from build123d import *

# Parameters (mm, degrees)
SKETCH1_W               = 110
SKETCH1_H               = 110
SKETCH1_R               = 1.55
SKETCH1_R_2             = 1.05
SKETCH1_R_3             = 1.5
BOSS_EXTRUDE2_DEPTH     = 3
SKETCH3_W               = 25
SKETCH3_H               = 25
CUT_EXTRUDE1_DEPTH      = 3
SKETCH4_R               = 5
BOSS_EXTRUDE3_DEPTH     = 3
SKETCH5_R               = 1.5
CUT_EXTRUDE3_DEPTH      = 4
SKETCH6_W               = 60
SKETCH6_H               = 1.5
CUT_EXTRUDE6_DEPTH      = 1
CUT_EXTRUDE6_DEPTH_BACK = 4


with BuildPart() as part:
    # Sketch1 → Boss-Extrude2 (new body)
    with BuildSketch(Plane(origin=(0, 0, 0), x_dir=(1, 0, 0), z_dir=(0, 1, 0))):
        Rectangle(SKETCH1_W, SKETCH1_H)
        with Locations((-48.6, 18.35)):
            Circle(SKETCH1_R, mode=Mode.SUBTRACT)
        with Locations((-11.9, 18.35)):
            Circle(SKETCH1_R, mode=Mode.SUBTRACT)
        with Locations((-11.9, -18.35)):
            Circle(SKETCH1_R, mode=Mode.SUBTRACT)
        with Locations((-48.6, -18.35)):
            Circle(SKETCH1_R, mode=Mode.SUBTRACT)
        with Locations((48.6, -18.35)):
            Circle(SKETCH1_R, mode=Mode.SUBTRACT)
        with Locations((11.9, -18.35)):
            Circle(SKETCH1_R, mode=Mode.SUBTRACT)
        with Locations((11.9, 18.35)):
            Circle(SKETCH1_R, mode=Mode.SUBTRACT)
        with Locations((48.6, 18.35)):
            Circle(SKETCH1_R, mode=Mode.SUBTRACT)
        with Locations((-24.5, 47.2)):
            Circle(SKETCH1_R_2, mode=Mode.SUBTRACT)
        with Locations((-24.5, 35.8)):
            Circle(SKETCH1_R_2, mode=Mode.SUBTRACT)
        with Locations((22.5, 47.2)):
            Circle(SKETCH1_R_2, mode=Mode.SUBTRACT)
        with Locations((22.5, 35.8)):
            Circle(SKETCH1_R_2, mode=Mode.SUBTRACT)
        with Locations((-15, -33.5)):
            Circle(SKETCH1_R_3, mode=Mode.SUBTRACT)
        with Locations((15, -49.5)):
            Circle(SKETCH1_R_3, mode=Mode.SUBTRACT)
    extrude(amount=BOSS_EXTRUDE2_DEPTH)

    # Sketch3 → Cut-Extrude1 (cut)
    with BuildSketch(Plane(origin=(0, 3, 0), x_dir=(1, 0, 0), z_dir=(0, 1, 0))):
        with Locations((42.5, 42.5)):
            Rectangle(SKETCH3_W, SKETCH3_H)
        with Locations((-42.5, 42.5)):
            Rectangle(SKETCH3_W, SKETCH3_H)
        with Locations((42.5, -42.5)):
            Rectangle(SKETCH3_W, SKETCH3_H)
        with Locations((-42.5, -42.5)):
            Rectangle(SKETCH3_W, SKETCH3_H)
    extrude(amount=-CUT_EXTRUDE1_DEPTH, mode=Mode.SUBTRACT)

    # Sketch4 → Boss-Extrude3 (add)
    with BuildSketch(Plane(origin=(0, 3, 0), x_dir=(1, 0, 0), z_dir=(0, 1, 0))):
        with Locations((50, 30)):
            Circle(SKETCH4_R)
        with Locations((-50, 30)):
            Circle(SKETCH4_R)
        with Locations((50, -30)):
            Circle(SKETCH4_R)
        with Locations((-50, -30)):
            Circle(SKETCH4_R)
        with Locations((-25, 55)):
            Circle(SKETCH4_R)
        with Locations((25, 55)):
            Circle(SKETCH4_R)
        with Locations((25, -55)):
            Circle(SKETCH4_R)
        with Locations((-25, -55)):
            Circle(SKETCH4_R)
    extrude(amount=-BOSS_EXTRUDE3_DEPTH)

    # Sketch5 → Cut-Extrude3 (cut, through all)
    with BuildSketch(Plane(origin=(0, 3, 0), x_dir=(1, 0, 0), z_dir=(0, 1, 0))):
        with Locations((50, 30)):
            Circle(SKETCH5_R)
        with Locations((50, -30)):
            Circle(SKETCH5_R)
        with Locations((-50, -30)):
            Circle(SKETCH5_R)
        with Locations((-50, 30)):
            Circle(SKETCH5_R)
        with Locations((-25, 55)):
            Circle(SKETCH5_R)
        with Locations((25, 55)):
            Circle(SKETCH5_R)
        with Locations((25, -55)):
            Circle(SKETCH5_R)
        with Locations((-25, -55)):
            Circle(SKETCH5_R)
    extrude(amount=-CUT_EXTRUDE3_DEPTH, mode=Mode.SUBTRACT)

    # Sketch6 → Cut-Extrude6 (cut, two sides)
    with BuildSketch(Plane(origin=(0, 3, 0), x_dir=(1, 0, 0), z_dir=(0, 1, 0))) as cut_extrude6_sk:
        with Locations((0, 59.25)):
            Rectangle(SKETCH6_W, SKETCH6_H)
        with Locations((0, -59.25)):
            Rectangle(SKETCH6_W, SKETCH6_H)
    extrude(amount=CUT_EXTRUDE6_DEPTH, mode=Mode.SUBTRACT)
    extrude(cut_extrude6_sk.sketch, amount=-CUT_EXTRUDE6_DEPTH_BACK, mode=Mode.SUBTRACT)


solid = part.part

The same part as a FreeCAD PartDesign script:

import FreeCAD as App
import Part
import Sketcher

V = App.Vector
Q = App.Units.Quantity

doc = App.newDocument("Part")
params = doc.addObject("Spreadsheet::Sheet", "Params")
for row, (alias, value) in enumerate([
    ("sketch1_diameter", "3 mm"),
    ("sketch1_diameter2", "3.1 mm"),
    ("sketch1_diameter3", "2.1 mm"),
    ("sketch1_width", "110 mm"),
    ("pad1_length", "3 mm"),
    ("sketch2_width", "25 mm"),
    ("pocket1_length", "3 mm"),
    ("sketch3_diameter", "10 mm"),
    ("pad2_length", "3 mm"),
    ("sketch4_diameter", "3 mm"),
    ("sketch5_width", "60 mm"),
    ("sketch5_height", "1.5 mm"),
], start=1):
    params.set(f"A{row}", alias)
    params.set(f"B{row}", "=" + value)
    params.setAlias(f"B{row}", alias)

body = doc.addObject("PartDesign::Body", "Body")

sketch1 = body.newObject("Sketcher::SketchObject", "Sketch")
sketch1.AttachmentSupport = (doc.getObject("XZ_Plane"), [""])
sketch1.MapMode = "FlatFace"
sketch1.addGeometry([
    Part.LineSegment(V(-55, -55, 0), V(-55, 55, 0)),
    Part.LineSegment(V(-55, 55, 0), V(55, 55, 0)),
    Part.LineSegment(V(55, 55, 0), V(55, -55, 0)),
    Part.LineSegment(V(55, -55, 0), V(-55, -55, 0)),
    Part.Circle(V(-15, 33.5, 0), V(0, 0, 1), 1.5),
    Part.Circle(V(-48.6, 18.35, 0), V(0, 0, 1), 1.55),
    Part.Circle(V(-11.9, 18.35, 0), V(0, 0, 1), 1.55),
    Part.Circle(V(15, 49.5, 0), V(0, 0, 1), 1.5),
    Part.Circle(V(11.9, 18.35, 0), V(0, 0, 1), 1.55),
    Part.Circle(V(48.6, 18.35, 0), V(0, 0, 1), 1.55),
    Part.Circle(V(-48.6, -18.35, 0), V(0, 0, 1), 1.55),
    Part.Circle(V(-11.9, -18.35, 0), V(0, 0, 1), 1.55),
    Part.Circle(V(-24.5, -35.8, 0), V(0, 0, 1), 1.05),
    Part.Circle(V(-24.5, -47.2, 0), V(0, 0, 1), 1.05),
    Part.Circle(V(11.9, -18.35, 0), V(0, 0, 1), 1.55),
    Part.Circle(V(48.6, -18.35, 0), V(0, 0, 1), 1.55),
    Part.Circle(V(22.5, -35.8, 0), V(0, 0, 1), 1.05),
    Part.Circle(V(22.5, -47.2, 0), V(0, 0, 1), 1.05),
], False)
sketch1.addConstraint([
    Sketcher.Constraint("Coincident", 0, 2, 1, 1),
    Sketcher.Constraint("Coincident", 1, 2, 2, 1),
    Sketcher.Constraint("Coincident", 2, 2, 3, 1),
    Sketcher.Constraint("Coincident", 3, 2, 0, 1),
    Sketcher.Constraint("Vertical", 0),
    Sketcher.Constraint("Horizontal", 1),
    Sketcher.Constraint("Vertical", 2),
    Sketcher.Constraint("Horizontal", 3),
    Sketcher.Constraint("Equal", 5, 6),
    Sketcher.Constraint("Equal", 4, 7),
    Sketcher.Constraint("Equal", 6, 8),
    Sketcher.Constraint("Equal", 8, 9),
    Sketcher.Constraint("Equal", 9, 10),
    Sketcher.Constraint("Equal", 10, 11),
    Sketcher.Constraint("Equal", 12, 13),
    Sketcher.Constraint("Equal", 11, 14),
    Sketcher.Constraint("Equal", 14, 15),
    Sketcher.Constraint("Equal", 13, 16),
    Sketcher.Constraint("Equal", 16, 17),
    Sketcher.Constraint("Symmetric", 9, 3, 10, 3, -1, 1),
    Sketcher.Constraint("Symmetric", 8, 3, 11, 3, -1, 1),
    Sketcher.Constraint("Symmetric", 6, 3, 14, 3, -1, 1),
    Sketcher.Constraint("Symmetric", 5, 3, 15, 3, -1, 1),
    Sketcher.Constraint("Symmetric", 0, 2, 2, 2, -1, 1),
    Sketcher.Constraint("Symmetric", 6, 3, 8, 3, -2),
    Sketcher.Constraint("Symmetric", 5, 3, 9, 3, -2),
    Sketcher.Constraint("Horizontal", 5, 3, 6, 3),
    Sketcher.Constraint("Horizontal", 12, 3, 16, 3),
    Sketcher.Constraint("Horizontal", 13, 3, 17, 3),
    Sketcher.Constraint("Vertical", 12, 3, 13, 3),
    Sketcher.Constraint("Vertical", 16, 3, 17, 3),
    Sketcher.Constraint("Equal", 3, 0),
    Sketcher.Constraint("Diameter", 4, Q("3 mm")),
    Sketcher.Constraint("Diameter", 5, Q("3.1 mm")),
    Sketcher.Constraint("Diameter", 12, Q("2.1 mm")),
    Sketcher.Constraint("DistanceX", 1, 1, 1, 2, Q("110 mm")),
    Sketcher.Constraint("DistanceX", 4, 3, -1, 1, Q("15 mm")),
    Sketcher.Constraint("DistanceX", -1, 1, 7, 3, Q("15 mm")),
    Sketcher.Constraint("DistanceY", 4, 3, 7, 3, Q("16 mm")),
    Sketcher.Constraint("DistanceX", 12, 3, 16, 3, Q("47 mm")),
    Sketcher.Constraint("DistanceY", -1, 1, 4, 3, Q("33.5 mm")),
    Sketcher.Constraint("DistanceX", 5, 3, -1, 1, Q("48.6 mm")),
    Sketcher.Constraint("DistanceX", 6, 3, -1, 1, Q("11.9 mm")),
    Sketcher.Constraint("DistanceX", 12, 3, -1, 1, Q("24.5 mm")),
    Sketcher.Constraint("DistanceY", 12, 3, -1, 1, Q("35.8 mm")),
    Sketcher.Constraint("DistanceY", 13, 3, -1, 1, Q("47.2 mm")),
    Sketcher.Constraint("DistanceY", 10, 3, 5, 3, Q("36.7 mm")),
])
sketch1.setExpression("Constraints[32]", "Params.sketch1_diameter")
sketch1.setExpression("Constraints[33]", "Params.sketch1_diameter2")
sketch1.setExpression("Constraints[34]", "Params.sketch1_diameter3")
sketch1.setExpression("Constraints[35]", "Params.sketch1_width")
pad1 = body.newObject("PartDesign::Pad", "Pad")
pad1.Profile = sketch1
pad1.setExpression("Length", "Params.pad1_length")
pad1.Reversed = True

sketch2 = body.newObject("Sketcher::SketchObject", "Sketch001")
sketch2.AttachmentSupport = (doc.getObject("XZ_Plane"), [""])
sketch2.MapMode = "FlatFace"
sketch2.AttachmentOffset = App.Placement(V(0, 0, -3), App.Rotation())
sketch2.addGeometry([
    Part.LineSegment(V(30, -55, 0), V(30, -30, 0)),
    Part.LineSegment(V(30, -30, 0), V(55, -30, 0)),
    Part.LineSegment(V(55, -30, 0), V(55, -55, 0)),
    Part.LineSegment(V(55, -55, 0), V(30, -55, 0)),
    Part.LineSegment(V(-55, -55, 0), V(-55, -30, 0)),
    Part.LineSegment(V(-55, -30, 0), V(-30, -30, 0)),
    Part.LineSegment(V(-30, -30, 0), V(-30, -55, 0)),
    Part.LineSegment(V(-30, -55, 0), V(-55, -55, 0)),
    Part.LineSegment(V(30, 30, 0), V(30, 55, 0)),
    Part.LineSegment(V(30, 55, 0), V(55, 55, 0)),
    Part.LineSegment(V(55, 55, 0), V(55, 30, 0)),
    Part.LineSegment(V(55, 30, 0), V(30, 30, 0)),
    Part.LineSegment(V(-55, 30, 0), V(-55, 55, 0)),
    Part.LineSegment(V(-55, 55, 0), V(-30, 55, 0)),
    Part.LineSegment(V(-30, 55, 0), V(-30, 30, 0)),
    Part.LineSegment(V(-30, 30, 0), V(-55, 30, 0)),
], False)
sketch2.addConstraint([
    Sketcher.Constraint("Coincident", 0, 2, 1, 1),
    Sketcher.Constraint("Coincident", 1, 2, 2, 1),
    Sketcher.Constraint("Coincident", 2, 2, 3, 1),
    Sketcher.Constraint("Coincident", 3, 2, 0, 1),
    Sketcher.Constraint("Coincident", 4, 2, 5, 1),
    Sketcher.Constraint("Coincident", 5, 2, 6, 1),
    Sketcher.Constraint("Coincident", 6, 2, 7, 1),
    Sketcher.Constraint("Coincident", 7, 2, 4, 1),
    Sketcher.Constraint("Coincident", 8, 2, 9, 1),
    Sketcher.Constraint("Coincident", 9, 2, 10, 1),
    Sketcher.Constraint("Coincident", 10, 2, 11, 1),
    Sketcher.Constraint("Coincident", 11, 2, 8, 1),
    Sketcher.Constraint("Coincident", 12, 2, 13, 1),
    Sketcher.Constraint("Coincident", 13, 2, 14, 1),
    Sketcher.Constraint("Coincident", 14, 2, 15, 1),
    Sketcher.Constraint("Coincident", 15, 2, 12, 1),
    Sketcher.Constraint("Vertical", 0),
    Sketcher.Constraint("Horizontal", 1),
    Sketcher.Constraint("Vertical", 2),
    Sketcher.Constraint("Horizontal", 3),
    Sketcher.Constraint("Vertical", 4),
    Sketcher.Constraint("Horizontal", 5),
    Sketcher.Constraint("Vertical", 6),
    Sketcher.Constraint("Horizontal", 7),
    Sketcher.Constraint("Vertical", 8),
    Sketcher.Constraint("Horizontal", 9),
    Sketcher.Constraint("Vertical", 10),
    Sketcher.Constraint("Horizontal", 11),
    Sketcher.Constraint("Vertical", 12),
    Sketcher.Constraint("Horizontal", 13),
    Sketcher.Constraint("Vertical", 14),
    Sketcher.Constraint("Horizontal", 15),
    Sketcher.Constraint("Symmetric", 6, 2, 8, 2, -1, 1),
    Sketcher.Constraint("Symmetric", 4, 2, 10, 2, -1, 1),
    Sketcher.Constraint("Symmetric", 2, 2, 12, 2, -1, 1),
    Sketcher.Constraint("Symmetric", 0, 2, 14, 2, -1, 1),
    Sketcher.Constraint("Symmetric", 1, 2, 4, 2, -2),
    Sketcher.Constraint("Symmetric", 3, 2, 6, 2, -2),
    Sketcher.Constraint("Equal", 15, 0),
    Sketcher.Constraint("DistanceX", 1, 1, 1, 2, Q("25 mm")),
    Sketcher.Constraint("DistanceX", -1, 1, 0, 2, Q("30 mm")),
    Sketcher.Constraint("DistanceY", 0, 2, -1, 1, Q("30 mm")),
])
sketch2.setExpression("Constraints[39]", "Params.sketch2_width")
pocket1 = body.newObject("PartDesign::Pocket", "Pocket")
pocket1.Profile = sketch2
pocket1.setExpression("Length", "Params.pocket1_length")
pocket1.Reversed = True

sketch3 = body.newObject("Sketcher::SketchObject", "Sketch002")
sketch3.AttachmentSupport = (doc.getObject("XZ_Plane"), [""])
sketch3.MapMode = "FlatFace"
sketch3.AttachmentOffset = App.Placement(V(0, 0, -3), App.Rotation())
sketch3.addGeometry([
    Part.Circle(V(50, -30, 0), V(0, 0, 1), 5),
    Part.Circle(V(-50, -30, 0), V(0, 0, 1), 5),
    Part.Circle(V(50, 30, 0), V(0, 0, 1), 5),
    Part.Circle(V(-50, 30, 0), V(0, 0, 1), 5),
    Part.Circle(V(-25, -55, 0), V(0, 0, 1), 5),
    Part.Circle(V(25, -55, 0), V(0, 0, 1), 5),
    Part.Circle(V(25, 55, 0), V(0, 0, 1), 5),
    Part.Circle(V(-25, 55, 0), V(0, 0, 1), 5),
], False)
sketch3.addConstraint([
    Sketcher.Constraint("Equal", 0, 1),
    Sketcher.Constraint("Equal", 1, 2),
    Sketcher.Constraint("Equal", 2, 3),
    Sketcher.Constraint("Equal", 3, 4),
    Sketcher.Constraint("Equal", 4, 5),
    Sketcher.Constraint("Equal", 5, 6),
    Sketcher.Constraint("Equal", 6, 7),
    Sketcher.Constraint("Symmetric", 1, 3, 2, 3, -1, 1),
    Sketcher.Constraint("Symmetric", 0, 3, 3, 3, -1, 1),
    Sketcher.Constraint("Symmetric", 4, 3, 6, 3, -1, 1),
    Sketcher.Constraint("Symmetric", 5, 3, 7, 3, -1, 1),
    Sketcher.Constraint("Symmetric", 0, 3, 1, 3, -2),
    Sketcher.Constraint("Symmetric", 4, 3, 5, 3, -2),
    Sketcher.Constraint("Diameter", 0, Q("10 mm")),
    Sketcher.Constraint("DistanceX", -1, 1, 0, 3, Q("50 mm")),
    Sketcher.Constraint("DistanceY", 0, 3, -1, 1, Q("30 mm")),
    Sketcher.Constraint("DistanceX", 4, 3, -1, 1, Q("25 mm")),
    Sketcher.Constraint("DistanceY", 4, 3, -1, 1, Q("55 mm")),
])
sketch3.setExpression("Constraints[13]", "Params.sketch3_diameter")
pad2 = body.newObject("PartDesign::Pad", "Pad001")
pad2.Profile = sketch3
pad2.setExpression("Length", "Params.pad2_length")

sketch4 = body.newObject("Sketcher::SketchObject", "Sketch003")
sketch4.AttachmentSupport = (doc.getObject("XZ_Plane"), [""])
sketch4.MapMode = "FlatFace"
sketch4.AttachmentOffset = App.Placement(V(0, 0, -3), App.Rotation())
sketch4.addGeometry([
    Part.Circle(V(50, -30, 0), V(0, 0, 1), 1.5),
    Part.Circle(V(50, 30, 0), V(0, 0, 1), 1.5),
    Part.Circle(V(-50, 30, 0), V(0, 0, 1), 1.5),
    Part.Circle(V(-50, -30, 0), V(0, 0, 1), 1.5),
    Part.Circle(V(-25, -55, 0), V(0, 0, 1), 1.5),
    Part.Circle(V(25, -55, 0), V(0, 0, 1), 1.5),
    Part.Circle(V(25, 55, 0), V(0, 0, 1), 1.5),
    Part.Circle(V(-25, 55, 0), V(0, 0, 1), 1.5),
], False)
sketch4.addConstraint([
    Sketcher.Constraint("Equal", 0, 1),
    Sketcher.Constraint("Equal", 1, 2),
    Sketcher.Constraint("Equal", 2, 3),
    Sketcher.Constraint("Equal", 3, 4),
    Sketcher.Constraint("Equal", 4, 5),
    Sketcher.Constraint("Equal", 5, 6),
    Sketcher.Constraint("Equal", 6, 7),
    Sketcher.Constraint("Symmetric", 0, 3, 2, 3, -1, 1),
    Sketcher.Constraint("Symmetric", 1, 3, 3, 3, -1, 1),
    Sketcher.Constraint("Symmetric", 4, 3, 6, 3, -1, 1),
    Sketcher.Constraint("Symmetric", 5, 3, 7, 3, -1, 1),
    Sketcher.Constraint("Symmetric", 1, 3, 2, 3, -2),
    Sketcher.Constraint("Symmetric", 4, 3, 5, 3, -2),
    Sketcher.Constraint("Diameter", 0, Q("3 mm")),
    Sketcher.Constraint("DistanceX", -1, 1, 0, 3, Q("50 mm")),
    Sketcher.Constraint("DistanceY", 0, 3, -1, 1, Q("30 mm")),
    Sketcher.Constraint("DistanceX", 4, 3, -1, 1, Q("25 mm")),
    Sketcher.Constraint("DistanceY", 4, 3, -1, 1, Q("55 mm")),
])
sketch4.setExpression("Constraints[13]", "Params.sketch4_diameter")
pocket2 = body.newObject("PartDesign::Pocket", "Pocket001")
pocket2.Profile = sketch4
pocket2.Type = "ThroughAll"
pocket2.Reversed = True

sketch5 = body.newObject("Sketcher::SketchObject", "Sketch004")
sketch5.AttachmentSupport = (doc.getObject("XZ_Plane"), [""])
sketch5.MapMode = "FlatFace"
sketch5.AttachmentOffset = App.Placement(V(0, 0, -3), App.Rotation())
sketch5.addGeometry([
    Part.LineSegment(V(-30, -60, 0), V(-30, -58.5, 0)),
    Part.LineSegment(V(-30, -58.5, 0), V(30, -58.5, 0)),
    Part.LineSegment(V(30, -58.5, 0), V(30, -60, 0)),
    Part.LineSegment(V(30, -60, 0), V(-30, -60, 0)),
    Part.LineSegment(V(-30, 58.5, 0), V(-30, 60, 0)),
    Part.LineSegment(V(-30, 60, 0), V(30, 60, 0)),
    Part.LineSegment(V(30, 60, 0), V(30, 58.5, 0)),
    Part.LineSegment(V(30, 58.5, 0), V(-30, 58.5, 0)),
], False)
sketch5.addConstraint([
    Sketcher.Constraint("Coincident", 0, 2, 1, 1),
    Sketcher.Constraint("Coincident", 1, 2, 2, 1),
    Sketcher.Constraint("Coincident", 2, 2, 3, 1),
    Sketcher.Constraint("Coincident", 3, 2, 0, 1),
    Sketcher.Constraint("Coincident", 4, 2, 5, 1),
    Sketcher.Constraint("Coincident", 5, 2, 6, 1),
    Sketcher.Constraint("Coincident", 6, 2, 7, 1),
    Sketcher.Constraint("Coincident", 7, 2, 4, 1),
    Sketcher.Constraint("Vertical", 0),
    Sketcher.Constraint("Horizontal", 1),
    Sketcher.Constraint("Vertical", 2),
    Sketcher.Constraint("Horizontal", 3),
    Sketcher.Constraint("Vertical", 4),
    Sketcher.Constraint("Horizontal", 5),
    Sketcher.Constraint("Vertical", 6),
    Sketcher.Constraint("Horizontal", 7),
    Sketcher.Constraint("Symmetric", 2, 2, 4, 2, -1, 1),
    Sketcher.Constraint("Symmetric", 0, 2, 6, 2, -1, 1),
    Sketcher.Constraint("Vertical", 3, 2, 4, 2),
    Sketcher.Constraint("DistanceX", 1, 1, 1, 2, Q("60 mm")),
    Sketcher.Constraint("DistanceY", 0, 1, 0, 2, Q("1.5 mm")),
    Sketcher.Constraint("DistanceY", 2, 2, -1, 1, Q("60 mm")),
])
sketch5.setExpression("Constraints[19]", "Params.sketch5_width")
sketch5.setExpression("Constraints[20]", "Params.sketch5_height")
pocket3 = body.newObject("PartDesign::Pocket", "Pocket002")
pocket3.Profile = sketch5
pocket3.Type = "ThroughAll"
pocket3.Midplane = True

doc.recompute()
